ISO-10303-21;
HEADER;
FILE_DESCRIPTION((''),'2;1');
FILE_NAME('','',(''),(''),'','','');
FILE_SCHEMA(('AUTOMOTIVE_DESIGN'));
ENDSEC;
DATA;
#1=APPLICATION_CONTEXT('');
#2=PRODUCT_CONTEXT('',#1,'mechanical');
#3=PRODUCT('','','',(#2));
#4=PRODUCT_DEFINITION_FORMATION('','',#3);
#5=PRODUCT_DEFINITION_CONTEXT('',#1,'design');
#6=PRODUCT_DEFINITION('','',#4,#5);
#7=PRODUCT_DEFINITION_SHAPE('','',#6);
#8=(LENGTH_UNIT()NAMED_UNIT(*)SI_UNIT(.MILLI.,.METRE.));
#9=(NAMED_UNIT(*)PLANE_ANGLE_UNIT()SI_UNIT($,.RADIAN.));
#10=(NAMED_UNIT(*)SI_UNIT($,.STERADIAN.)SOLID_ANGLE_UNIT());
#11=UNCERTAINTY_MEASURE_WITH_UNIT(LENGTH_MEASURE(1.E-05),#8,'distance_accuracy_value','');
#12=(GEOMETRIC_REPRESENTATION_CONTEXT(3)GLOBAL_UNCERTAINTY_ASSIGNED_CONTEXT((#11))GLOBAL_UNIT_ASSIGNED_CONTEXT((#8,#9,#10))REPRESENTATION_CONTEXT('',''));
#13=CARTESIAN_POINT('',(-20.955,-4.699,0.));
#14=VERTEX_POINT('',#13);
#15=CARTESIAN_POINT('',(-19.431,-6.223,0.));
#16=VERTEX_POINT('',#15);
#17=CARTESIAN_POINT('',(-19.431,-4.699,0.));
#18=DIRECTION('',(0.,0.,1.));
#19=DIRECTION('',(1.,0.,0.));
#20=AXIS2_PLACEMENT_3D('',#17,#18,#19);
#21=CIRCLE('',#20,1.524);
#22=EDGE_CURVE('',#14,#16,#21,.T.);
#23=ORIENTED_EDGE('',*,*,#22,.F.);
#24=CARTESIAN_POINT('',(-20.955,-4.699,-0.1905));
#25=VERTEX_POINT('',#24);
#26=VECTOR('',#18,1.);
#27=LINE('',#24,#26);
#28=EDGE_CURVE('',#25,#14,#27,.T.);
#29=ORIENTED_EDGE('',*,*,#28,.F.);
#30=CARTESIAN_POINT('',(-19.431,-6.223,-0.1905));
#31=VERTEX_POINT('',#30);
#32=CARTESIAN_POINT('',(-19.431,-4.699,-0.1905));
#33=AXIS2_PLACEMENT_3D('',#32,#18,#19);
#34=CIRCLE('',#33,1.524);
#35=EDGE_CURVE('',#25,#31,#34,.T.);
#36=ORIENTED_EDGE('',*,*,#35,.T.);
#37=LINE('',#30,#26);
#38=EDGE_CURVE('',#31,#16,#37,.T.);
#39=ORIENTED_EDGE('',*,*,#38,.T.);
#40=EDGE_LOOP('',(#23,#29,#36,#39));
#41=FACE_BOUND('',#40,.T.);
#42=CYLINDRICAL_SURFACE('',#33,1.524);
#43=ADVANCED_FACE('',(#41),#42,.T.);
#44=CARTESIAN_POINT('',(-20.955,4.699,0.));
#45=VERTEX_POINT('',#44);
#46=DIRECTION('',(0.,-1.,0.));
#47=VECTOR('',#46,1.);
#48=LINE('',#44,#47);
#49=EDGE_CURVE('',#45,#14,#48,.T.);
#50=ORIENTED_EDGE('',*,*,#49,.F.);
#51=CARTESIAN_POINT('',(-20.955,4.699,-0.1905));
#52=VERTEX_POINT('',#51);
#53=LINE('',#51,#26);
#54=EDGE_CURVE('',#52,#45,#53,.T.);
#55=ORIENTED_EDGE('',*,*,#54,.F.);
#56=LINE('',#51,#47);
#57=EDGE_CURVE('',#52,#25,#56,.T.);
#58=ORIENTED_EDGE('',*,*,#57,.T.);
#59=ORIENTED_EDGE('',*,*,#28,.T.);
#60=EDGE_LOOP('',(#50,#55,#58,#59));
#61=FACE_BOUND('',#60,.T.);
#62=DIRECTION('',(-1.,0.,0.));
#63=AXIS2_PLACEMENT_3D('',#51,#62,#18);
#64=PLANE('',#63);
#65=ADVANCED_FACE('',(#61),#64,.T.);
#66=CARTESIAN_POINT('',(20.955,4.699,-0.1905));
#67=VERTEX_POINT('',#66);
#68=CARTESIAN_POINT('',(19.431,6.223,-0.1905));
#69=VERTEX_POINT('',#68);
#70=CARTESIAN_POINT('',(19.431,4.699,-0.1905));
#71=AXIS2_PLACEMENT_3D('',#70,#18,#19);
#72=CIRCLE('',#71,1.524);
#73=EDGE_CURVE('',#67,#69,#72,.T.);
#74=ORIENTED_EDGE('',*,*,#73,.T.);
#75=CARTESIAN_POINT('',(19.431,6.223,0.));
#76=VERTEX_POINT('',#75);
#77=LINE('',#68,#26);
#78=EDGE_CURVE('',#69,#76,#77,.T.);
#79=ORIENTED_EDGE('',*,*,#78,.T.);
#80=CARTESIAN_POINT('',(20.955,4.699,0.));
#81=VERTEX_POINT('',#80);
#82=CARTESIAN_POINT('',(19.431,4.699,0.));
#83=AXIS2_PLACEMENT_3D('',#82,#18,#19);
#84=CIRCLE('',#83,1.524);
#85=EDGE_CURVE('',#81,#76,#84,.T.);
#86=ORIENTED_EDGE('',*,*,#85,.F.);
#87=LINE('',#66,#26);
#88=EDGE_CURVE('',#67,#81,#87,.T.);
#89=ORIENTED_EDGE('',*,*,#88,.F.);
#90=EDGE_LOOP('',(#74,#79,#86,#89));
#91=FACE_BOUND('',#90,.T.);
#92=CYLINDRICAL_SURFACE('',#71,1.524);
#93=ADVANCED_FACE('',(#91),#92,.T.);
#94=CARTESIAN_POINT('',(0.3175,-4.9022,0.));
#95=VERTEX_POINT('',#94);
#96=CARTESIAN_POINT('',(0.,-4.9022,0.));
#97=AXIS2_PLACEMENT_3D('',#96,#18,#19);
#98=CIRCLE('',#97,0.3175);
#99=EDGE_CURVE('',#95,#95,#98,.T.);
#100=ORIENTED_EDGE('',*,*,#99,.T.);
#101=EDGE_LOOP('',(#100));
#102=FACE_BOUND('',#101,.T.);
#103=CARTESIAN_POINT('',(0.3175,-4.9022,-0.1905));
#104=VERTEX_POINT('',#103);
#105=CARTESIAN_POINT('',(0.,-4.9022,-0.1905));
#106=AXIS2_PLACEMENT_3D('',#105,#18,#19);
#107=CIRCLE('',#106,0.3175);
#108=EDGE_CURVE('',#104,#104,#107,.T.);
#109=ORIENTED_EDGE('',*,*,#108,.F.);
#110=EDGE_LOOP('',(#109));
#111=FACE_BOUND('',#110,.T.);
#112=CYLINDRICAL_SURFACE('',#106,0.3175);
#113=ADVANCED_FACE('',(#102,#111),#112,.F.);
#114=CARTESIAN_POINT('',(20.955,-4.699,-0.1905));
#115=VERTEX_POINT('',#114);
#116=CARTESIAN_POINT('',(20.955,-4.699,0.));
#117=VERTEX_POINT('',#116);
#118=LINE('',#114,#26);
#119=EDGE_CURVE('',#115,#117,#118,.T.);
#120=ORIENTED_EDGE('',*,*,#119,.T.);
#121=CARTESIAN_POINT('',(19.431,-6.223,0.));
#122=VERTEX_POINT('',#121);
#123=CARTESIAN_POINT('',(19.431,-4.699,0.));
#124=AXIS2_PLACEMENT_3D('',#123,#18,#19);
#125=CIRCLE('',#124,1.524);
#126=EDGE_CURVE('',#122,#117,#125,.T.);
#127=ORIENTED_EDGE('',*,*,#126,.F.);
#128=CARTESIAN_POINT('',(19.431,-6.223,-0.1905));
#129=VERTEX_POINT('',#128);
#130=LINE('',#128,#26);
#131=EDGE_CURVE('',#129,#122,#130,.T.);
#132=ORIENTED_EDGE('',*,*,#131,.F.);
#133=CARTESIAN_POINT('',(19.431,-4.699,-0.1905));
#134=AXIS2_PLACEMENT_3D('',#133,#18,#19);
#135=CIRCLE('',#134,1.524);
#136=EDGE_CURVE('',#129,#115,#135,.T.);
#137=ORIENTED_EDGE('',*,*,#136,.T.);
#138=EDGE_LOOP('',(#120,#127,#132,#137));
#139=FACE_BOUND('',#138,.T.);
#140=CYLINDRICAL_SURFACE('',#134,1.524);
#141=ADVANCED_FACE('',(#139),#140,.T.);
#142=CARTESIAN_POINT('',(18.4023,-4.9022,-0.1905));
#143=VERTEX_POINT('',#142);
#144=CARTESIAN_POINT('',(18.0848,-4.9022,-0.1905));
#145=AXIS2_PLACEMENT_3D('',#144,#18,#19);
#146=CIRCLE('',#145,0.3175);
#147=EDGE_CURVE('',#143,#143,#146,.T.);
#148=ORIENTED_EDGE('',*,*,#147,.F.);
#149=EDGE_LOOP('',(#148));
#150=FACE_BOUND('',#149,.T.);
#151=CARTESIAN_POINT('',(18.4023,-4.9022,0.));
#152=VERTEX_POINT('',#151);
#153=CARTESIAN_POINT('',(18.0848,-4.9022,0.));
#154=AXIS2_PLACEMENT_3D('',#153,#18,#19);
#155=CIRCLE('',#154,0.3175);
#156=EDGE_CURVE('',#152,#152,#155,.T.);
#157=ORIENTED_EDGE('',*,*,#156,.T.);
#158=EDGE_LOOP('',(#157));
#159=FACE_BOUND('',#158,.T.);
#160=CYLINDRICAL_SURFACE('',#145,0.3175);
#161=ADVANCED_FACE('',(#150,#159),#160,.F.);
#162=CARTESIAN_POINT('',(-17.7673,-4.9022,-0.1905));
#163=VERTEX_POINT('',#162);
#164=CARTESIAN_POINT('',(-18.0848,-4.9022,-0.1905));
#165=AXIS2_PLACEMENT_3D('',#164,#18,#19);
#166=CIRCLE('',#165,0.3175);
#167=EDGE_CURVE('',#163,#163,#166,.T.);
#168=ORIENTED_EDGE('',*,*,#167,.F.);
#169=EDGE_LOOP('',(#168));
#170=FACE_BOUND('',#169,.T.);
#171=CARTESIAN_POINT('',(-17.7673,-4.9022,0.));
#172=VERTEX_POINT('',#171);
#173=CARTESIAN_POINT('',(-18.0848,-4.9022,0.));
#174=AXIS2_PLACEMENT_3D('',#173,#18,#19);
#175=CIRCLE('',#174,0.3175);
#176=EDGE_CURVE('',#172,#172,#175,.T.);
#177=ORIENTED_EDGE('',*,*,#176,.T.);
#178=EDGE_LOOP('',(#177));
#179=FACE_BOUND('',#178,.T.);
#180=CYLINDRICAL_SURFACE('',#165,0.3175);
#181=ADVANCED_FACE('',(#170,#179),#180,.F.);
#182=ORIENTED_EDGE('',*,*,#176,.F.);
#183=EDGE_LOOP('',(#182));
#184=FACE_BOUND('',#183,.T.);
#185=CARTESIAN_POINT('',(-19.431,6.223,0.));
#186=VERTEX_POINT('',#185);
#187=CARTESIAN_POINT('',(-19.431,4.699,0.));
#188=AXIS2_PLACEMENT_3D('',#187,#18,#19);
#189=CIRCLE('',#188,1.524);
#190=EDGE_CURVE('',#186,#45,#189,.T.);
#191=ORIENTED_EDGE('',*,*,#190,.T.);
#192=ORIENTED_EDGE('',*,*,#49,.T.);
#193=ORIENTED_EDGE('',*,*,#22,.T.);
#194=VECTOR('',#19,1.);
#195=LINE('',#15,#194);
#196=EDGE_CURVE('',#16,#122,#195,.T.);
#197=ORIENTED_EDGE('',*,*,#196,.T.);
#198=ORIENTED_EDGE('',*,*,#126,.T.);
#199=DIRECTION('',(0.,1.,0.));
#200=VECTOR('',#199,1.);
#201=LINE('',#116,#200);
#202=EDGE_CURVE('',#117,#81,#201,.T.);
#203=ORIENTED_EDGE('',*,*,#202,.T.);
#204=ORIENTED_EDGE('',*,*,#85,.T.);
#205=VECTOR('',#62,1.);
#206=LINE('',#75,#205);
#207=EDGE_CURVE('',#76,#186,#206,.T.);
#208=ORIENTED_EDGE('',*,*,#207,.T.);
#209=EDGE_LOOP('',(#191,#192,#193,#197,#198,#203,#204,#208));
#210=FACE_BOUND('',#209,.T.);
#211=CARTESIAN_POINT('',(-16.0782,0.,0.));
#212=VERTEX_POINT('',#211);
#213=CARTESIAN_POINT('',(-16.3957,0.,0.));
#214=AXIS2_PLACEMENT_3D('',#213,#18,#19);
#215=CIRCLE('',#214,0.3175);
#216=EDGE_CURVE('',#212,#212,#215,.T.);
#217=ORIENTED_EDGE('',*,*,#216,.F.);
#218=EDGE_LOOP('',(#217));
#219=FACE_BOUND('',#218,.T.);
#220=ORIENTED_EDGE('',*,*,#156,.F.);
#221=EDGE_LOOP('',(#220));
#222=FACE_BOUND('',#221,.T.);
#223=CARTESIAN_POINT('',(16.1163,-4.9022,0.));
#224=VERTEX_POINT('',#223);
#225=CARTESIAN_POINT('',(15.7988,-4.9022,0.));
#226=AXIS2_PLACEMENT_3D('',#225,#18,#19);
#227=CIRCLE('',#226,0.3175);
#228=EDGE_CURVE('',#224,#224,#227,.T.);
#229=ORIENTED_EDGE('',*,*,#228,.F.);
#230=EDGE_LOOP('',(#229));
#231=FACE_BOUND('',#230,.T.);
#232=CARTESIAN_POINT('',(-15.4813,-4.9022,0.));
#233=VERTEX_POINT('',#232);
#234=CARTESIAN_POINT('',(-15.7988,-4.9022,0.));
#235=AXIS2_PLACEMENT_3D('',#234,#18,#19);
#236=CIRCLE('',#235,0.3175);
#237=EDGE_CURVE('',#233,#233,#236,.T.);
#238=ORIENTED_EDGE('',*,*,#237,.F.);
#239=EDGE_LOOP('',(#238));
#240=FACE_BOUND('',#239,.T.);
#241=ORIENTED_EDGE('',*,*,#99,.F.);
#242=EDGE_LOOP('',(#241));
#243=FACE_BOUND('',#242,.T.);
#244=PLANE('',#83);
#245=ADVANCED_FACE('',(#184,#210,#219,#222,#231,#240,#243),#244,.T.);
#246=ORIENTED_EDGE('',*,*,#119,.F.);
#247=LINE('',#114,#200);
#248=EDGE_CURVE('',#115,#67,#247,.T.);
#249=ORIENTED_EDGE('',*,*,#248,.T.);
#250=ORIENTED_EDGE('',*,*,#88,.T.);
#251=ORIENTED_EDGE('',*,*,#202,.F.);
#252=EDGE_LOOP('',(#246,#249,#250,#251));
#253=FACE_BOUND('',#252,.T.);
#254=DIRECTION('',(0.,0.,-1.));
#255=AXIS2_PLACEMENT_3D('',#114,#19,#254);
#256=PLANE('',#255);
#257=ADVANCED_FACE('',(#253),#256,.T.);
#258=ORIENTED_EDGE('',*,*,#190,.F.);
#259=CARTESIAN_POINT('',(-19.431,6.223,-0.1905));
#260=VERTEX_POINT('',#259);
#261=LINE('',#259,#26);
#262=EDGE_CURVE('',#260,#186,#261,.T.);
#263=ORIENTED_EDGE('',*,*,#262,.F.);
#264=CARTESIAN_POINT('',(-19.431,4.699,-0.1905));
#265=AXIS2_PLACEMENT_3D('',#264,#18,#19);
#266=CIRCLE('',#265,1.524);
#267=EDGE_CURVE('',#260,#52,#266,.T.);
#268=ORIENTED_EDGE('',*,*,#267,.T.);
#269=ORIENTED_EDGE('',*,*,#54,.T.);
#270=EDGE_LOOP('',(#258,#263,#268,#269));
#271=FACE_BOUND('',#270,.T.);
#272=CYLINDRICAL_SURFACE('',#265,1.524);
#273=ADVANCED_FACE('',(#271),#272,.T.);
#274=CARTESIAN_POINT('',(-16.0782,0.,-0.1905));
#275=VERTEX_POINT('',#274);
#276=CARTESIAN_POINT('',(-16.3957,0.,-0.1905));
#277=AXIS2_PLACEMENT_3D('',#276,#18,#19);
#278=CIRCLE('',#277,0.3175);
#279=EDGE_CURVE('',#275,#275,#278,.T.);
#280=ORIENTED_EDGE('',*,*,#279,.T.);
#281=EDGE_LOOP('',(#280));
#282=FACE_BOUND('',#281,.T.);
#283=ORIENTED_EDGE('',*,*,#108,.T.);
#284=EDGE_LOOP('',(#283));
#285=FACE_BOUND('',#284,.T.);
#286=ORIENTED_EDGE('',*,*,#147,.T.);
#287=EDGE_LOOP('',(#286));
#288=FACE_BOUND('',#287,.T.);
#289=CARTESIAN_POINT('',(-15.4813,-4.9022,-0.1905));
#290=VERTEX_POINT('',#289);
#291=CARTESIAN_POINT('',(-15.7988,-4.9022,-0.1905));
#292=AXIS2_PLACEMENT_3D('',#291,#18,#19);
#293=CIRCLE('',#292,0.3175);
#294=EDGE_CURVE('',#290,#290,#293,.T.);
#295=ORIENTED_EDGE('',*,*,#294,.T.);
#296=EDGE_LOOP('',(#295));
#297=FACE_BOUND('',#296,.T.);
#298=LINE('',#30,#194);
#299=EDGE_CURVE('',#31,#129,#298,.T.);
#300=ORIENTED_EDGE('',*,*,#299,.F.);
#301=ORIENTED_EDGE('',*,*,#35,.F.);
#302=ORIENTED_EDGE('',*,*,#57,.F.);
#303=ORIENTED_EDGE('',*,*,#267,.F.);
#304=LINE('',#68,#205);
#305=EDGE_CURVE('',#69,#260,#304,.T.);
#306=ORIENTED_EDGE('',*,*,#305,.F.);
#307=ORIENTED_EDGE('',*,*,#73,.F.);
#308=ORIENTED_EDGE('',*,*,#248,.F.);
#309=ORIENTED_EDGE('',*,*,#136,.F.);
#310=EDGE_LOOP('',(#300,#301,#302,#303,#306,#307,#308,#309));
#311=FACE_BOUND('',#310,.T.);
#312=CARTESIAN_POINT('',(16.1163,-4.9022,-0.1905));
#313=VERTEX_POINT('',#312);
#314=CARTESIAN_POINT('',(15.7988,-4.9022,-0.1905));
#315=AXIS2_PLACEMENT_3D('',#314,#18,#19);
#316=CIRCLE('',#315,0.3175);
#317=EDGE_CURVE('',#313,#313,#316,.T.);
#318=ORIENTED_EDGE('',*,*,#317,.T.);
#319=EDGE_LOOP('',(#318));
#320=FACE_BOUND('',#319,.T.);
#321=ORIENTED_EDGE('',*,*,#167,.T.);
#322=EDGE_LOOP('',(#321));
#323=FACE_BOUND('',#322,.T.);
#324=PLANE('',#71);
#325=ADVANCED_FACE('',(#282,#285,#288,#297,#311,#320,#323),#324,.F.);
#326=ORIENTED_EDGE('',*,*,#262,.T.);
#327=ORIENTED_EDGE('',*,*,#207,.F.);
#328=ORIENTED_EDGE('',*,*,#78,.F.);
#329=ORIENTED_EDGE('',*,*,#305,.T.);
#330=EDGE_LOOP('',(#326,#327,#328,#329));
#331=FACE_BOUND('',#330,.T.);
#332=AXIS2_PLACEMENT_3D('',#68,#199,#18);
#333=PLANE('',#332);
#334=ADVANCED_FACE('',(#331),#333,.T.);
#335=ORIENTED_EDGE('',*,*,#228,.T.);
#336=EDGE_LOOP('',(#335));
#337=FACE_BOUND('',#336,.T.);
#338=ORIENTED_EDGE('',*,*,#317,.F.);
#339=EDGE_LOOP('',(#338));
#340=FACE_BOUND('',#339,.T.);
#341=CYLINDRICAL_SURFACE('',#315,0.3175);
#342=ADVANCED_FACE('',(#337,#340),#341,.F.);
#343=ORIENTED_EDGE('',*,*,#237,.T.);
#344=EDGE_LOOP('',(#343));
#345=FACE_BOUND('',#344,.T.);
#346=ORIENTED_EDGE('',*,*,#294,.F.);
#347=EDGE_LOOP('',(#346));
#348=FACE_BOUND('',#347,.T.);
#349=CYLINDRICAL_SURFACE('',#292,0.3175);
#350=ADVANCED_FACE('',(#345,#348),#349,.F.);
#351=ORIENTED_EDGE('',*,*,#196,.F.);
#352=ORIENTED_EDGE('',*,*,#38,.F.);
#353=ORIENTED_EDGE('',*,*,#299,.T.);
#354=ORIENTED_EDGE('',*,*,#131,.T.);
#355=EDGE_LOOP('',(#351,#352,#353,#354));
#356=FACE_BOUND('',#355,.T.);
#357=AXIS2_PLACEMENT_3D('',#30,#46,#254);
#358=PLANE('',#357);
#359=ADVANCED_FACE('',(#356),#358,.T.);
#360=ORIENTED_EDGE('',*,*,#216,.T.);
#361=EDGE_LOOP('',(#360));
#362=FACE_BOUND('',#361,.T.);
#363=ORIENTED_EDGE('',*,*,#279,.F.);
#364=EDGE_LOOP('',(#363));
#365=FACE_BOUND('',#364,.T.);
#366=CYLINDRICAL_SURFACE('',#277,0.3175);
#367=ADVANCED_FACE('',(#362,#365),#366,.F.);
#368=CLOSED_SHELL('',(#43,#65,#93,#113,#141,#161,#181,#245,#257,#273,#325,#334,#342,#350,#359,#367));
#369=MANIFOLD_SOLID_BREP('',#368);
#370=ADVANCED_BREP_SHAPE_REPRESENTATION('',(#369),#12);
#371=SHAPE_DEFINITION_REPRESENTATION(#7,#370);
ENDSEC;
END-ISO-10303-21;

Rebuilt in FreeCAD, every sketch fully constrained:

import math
import FreeCAD as App
import Part
import Sketcher
Q = App.Units.Quantity

doc = App.newDocument("Part")
body = doc.addObject("PartDesign::Body", "Body")

sketch1 = body.newObject("Sketcher::SketchObject", "Sketch")
sketch1.AttachmentSupport = (doc.getObject("XY_Plane"), [""])
sketch1.MapMode = "FlatFace"
sketch1.addGeometry([
    Part.LineSegment(App.Vector(19.431, 6.223, 0), App.Vector(-19.431, 6.223, 0)),
    Part.ArcOfCircle(Part.Circle(App.Vector(-19.431, 4.699, 0), App.Vector(0, 0, 1), 1.524), math.radians(90), math.radians(180)),
    Part.LineSegment(App.Vector(-20.955, 4.699, 0), App.Vector(-20.955, -4.699, 0)),
    Part.ArcOfCircle(Part.Circle(App.Vector(-19.431, -4.699, 0), App.Vector(0, 0, 1), 1.524), math.radians(180), math.radians(270)),
    Part.LineSegment(App.Vector(-19.431, -6.223, 0), App.Vector(19.431, -6.223, 0)),
    Part.ArcOfCircle(Part.Circle(App.Vector(19.431, -4.699, 0), App.Vector(0, 0, 1), 1.524), math.radians(-90), math.radians(0)),
    Part.LineSegment(App.Vector(20.955, -4.699, 0), App.Vector(20.955, 4.699, 0)),
    Part.ArcOfCircle(Part.Circle(App.Vector(19.431, 4.699, 0), App.Vector(0, 0, 1), 1.524), math.radians(0), math.radians(90)),
    Part.Circle(App.Vector(-18.0848, -4.9022, 0), App.Vector(0, 0, 1), 0.3175),
    Part.Circle(App.Vector(-15.7988, -4.9022, 0), App.Vector(0, 0, 1), 0.3175),
    Part.Circle(App.Vector(0, -4.9022, 0), App.Vector(0, 0, 1), 0.3175),
    Part.Circle(App.Vector(15.7988, -4.9022, 0), App.Vector(0, 0, 1), 0.3175),
    Part.Circle(App.Vector(18.0848, -4.9022, 0), App.Vector(0, 0, 1), 0.3175),
    Part.Circle(App.Vector(-16.3957, 0, 0), App.Vector(0, 0, 1), 0.3175),
], False)
sketch1.addConstraint([
    Sketcher.Constraint("Tangent", 0, 2, 1, 1),
    Sketcher.Constraint("Tangent", 1, 2, 2, 1),
    Sketcher.Constraint("Tangent", 2, 2, 3, 1),
    Sketcher.Constraint("Tangent", 3, 2, 4, 1),
    Sketcher.Constraint("Tangent", 4, 2, 5, 1),
    Sketcher.Constraint("Tangent", 5, 2, 6, 1),
    Sketcher.Constraint("Tangent", 6, 2, 7, 1),
    Sketcher.Constraint("Tangent", 7, 2, 0, 1),
    Sketcher.Constraint("Horizontal", 0),
    Sketcher.Constraint("Vertical", 2),
    Sketcher.Constraint("Horizontal", 4),
    Sketcher.Constraint("Vertical", 6),
    Sketcher.Constraint("Equal", 1, 3),
    Sketcher.Constraint("Equal", 3, 5),
    Sketcher.Constraint("Equal", 5, 7),
    Sketcher.Constraint("Equal", 8, 9),
    Sketcher.Constraint("Equal", 9, 10),
    Sketcher.Constraint("Equal", 10, 11),
    Sketcher.Constraint("Equal", 11, 12),
    Sketcher.Constraint("Equal", 12, 13),
    Sketcher.Constraint("Symmetric", 1, 3, 5, 3, -1, 1),
    Sketcher.Constraint("Symmetric", 9, 3, 11, 3, -2),
    Sketcher.Constraint("Symmetric", 8, 3, 12, 3, -2),
    Sketcher.Constraint("PointOnObject", 10, 3, -2),
    Sketcher.Constraint("PointOnObject", 13, 3, -1),
    Sketcher.Constraint("Horizontal", 8, 3, 9, 3),
    Sketcher.Constraint("Horizontal", 9, 3, 10, 3),
    Sketcher.Constraint("Radius", 1, Q("0.06 in")),
    Sketcher.Constraint("Diameter", 8, Q("0.025 in")),
    Sketcher.Constraint("DistanceX", 0, 2, 0, 1, Q("1.53 in")),
    Sketcher.Constraint("DistanceY", 2, 2, 2, 1, Q("0.37 in")),
    Sketcher.Constraint("DistanceX", 8, 3, 9, 3, Q("0.09 in")),
    Sketcher.Constraint("DistanceX", 8, 3, -1, 1, Q("0.712 in")),
    Sketcher.Constraint("DistanceY", 8, 3, -1, 1, Q("0.193 in")),
    Sketcher.Constraint("DistanceX", 13, 3, -1, 1, Q("0.6455 in")),
])
pad1 = body.newObject("PartDesign::Pad", "Pad")
pad1.Profile = sketch1
pad1.Length = Q("0.0075 in")
pad1.Reversed = True

doc.recompute()
